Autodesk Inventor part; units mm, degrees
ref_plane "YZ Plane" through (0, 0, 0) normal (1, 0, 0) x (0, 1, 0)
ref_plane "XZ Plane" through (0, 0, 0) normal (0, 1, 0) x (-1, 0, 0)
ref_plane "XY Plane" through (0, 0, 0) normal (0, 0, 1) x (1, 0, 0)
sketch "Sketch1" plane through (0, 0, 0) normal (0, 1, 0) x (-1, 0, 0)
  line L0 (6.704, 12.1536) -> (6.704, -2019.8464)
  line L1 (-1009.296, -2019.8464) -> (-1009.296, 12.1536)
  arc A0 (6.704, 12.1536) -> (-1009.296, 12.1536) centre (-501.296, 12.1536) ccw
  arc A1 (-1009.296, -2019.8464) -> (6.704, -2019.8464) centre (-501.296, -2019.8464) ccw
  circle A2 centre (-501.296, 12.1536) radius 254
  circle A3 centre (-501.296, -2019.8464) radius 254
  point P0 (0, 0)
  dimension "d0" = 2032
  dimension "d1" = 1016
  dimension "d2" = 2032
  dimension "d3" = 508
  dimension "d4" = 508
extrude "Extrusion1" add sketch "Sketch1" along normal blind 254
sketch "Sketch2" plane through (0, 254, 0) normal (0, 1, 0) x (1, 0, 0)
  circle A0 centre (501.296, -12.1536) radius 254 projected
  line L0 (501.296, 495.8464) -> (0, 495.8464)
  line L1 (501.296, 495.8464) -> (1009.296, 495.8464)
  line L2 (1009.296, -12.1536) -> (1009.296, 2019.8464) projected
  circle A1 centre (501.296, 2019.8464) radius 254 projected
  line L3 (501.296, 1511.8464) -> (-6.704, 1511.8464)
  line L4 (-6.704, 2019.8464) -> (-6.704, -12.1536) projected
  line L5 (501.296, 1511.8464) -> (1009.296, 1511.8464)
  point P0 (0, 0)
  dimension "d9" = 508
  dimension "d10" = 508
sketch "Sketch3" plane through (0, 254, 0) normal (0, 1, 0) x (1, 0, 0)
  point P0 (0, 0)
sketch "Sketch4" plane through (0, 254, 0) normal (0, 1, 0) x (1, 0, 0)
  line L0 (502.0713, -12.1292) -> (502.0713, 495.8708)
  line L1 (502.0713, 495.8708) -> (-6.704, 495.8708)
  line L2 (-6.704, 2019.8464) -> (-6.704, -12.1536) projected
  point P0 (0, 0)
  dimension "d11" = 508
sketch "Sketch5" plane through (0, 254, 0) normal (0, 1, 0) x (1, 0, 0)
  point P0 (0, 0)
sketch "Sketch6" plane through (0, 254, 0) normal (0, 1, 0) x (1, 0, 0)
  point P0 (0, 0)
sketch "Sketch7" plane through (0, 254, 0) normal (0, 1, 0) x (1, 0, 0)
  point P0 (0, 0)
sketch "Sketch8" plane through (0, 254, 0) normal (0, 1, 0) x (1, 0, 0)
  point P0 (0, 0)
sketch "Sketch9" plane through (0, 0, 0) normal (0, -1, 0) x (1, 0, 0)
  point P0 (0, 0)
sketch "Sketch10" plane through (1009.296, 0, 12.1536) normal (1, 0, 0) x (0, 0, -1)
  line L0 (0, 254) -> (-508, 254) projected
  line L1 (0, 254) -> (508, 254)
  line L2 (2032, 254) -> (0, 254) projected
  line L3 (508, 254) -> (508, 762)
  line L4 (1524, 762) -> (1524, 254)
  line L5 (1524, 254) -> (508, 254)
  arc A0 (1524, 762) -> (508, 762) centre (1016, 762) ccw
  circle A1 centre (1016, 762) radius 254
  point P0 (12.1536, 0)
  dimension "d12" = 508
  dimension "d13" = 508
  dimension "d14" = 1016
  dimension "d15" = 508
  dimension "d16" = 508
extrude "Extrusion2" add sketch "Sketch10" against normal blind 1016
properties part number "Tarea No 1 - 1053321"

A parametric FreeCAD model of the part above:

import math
import FreeCAD as App
import Part
import Sketcher

V = App.Vector
Q = App.Units.Quantity

doc = App.newDocument("Part")
body = doc.addObject("PartDesign::Body", "Body")

sketch1 = body.newObject("Sketcher::SketchObject", "Sketch")
sketch1.AttachmentSupport = (doc.getObject("XZ_Plane"), [""])
sketch1.MapMode = "FlatFace"
sketch1.addGeometry(Part.LineSegment(V(-6.704, -2019.8464, 0), V(-6.704, 12.1536, 0)), False)
sketch1.addGeometry(Part.ArcOfCircle(Part.Circle(V(501.296, 12.1536, 0), V(0, 0, 1), 508), math.radians(0), math.radians(180)), False)
sketch1.addGeometry(Part.LineSegment(V(1009.296, 12.1536, 0), V(1009.296, -2019.8464, 0)), False)
sketch1.addGeometry(Part.ArcOfCircle(Part.Circle(V(501.296, -2019.8464, 0), V(0, 0, 1), 508), math.radians(180), math.radians(360)), False)
sketch1.addGeometry(Part.Circle(V(501.296, -2019.8464, 0), V(0, 0, 1), 254), False)
sketch1.addGeometry(Part.Circle(V(501.296, 12.1536, 0), V(0, 0, 1), 254), False)
sketch1.addConstraint(Sketcher.Constraint("Tangent", 0, 2, 1, 2))
sketch1.addConstraint(Sketcher.Constraint("Tangent", 1, 1, 2, 1))
sketch1.addConstraint(Sketcher.Constraint("Tangent", 2, 2, 3, 2))
sketch1.addConstraint(Sketcher.Constraint("Tangent", 3, 1, 0, 1))
sketch1.addConstraint(Sketcher.Constraint("Vertical", 0))
sketch1.addConstraint(Sketcher.Constraint("Vertical", 2))
sketch1.addConstraint(Sketcher.Constraint("Coincident", 4, 3, 3, 3))
sketch1.addConstraint(Sketcher.Constraint("Coincident", 5, 3, 1, 3))
sketch1.addConstraint(Sketcher.Constraint("Equal", 4, 5))
sketch1.addConstraint(Sketcher.Constraint("Diameter", 4, Q("20 in")))
sketch1.addConstraint(Sketcher.Constraint("Radius", 1, Q("20 in")))
sketch1.addConstraint(Sketcher.Constraint("DistanceY", 0, 1, 0, 2, Q("80 in")))
sketch1.addConstraint(Sketcher.Constraint("DistanceY", -1, 1, 1, 3, Q("0.4785 in")))
sketch1.addConstraint(Sketcher.Constraint("DistanceX", -1, 1, 1, 3, 501.296))
pad1 = body.newObject("PartDesign::Pad", "Pad")
pad1.Profile = sketch1
pad1.Length = Q("10 in")
pad1.Reversed = True

sketch2 = body.newObject("Sketcher::SketchObject", "Sketch001")
sketch2.AttachmentSupport = (doc.getObject("YZ_Plane"), [""])
sketch2.MapMode = "FlatFace"
sketch2.AttachmentOffset = App.Placement(V(0, 0, 1009.296), App.Rotation())
sketch2.addGeometry(Part.LineSegment(V(254, -495.8464, 0), V(254, -1511.8464, 0)), False)
sketch2.addGeometry(Part.LineSegment(V(254, -1511.8464, 0), V(762, -1511.8464, 0)), False)
sketch2.addGeometry(Part.ArcOfCircle(Part.Circle(V(762, -1003.8464, 0), V(0, 0, 1), 508), math.radians(-90), math.radians(90)), False)
sketch2.addGeometry(Part.LineSegment(V(762, -495.8464, 0), V(254, -495.8464, 0)), False)
sketch2.addGeometry(Part.Circle(V(762, -1003.8464, 0), V(0, 0, 1), 254), False)
sketch2.addConstraint(Sketcher.Constraint("Coincident", 0, 2, 1, 1))
sketch2.addConstraint(Sketcher.Constraint("Tangent", 1, 2, 2, 1))
sketch2.addConstraint(Sketcher.Constraint("Tangent", 2, 2, 3, 1))
sketch2.addConstraint(Sketcher.Constraint("Coincident", 3, 2, 0, 1))
sketch2.addConstraint(Sketcher.Constraint("Vertical", 0))
sketch2.addConstraint(Sketcher.Constraint("Horizontal", 1))
sketch2.addConstraint(Sketcher.Constraint("Horizontal", 3))
sketch2.addConstraint(Sketcher.Constraint("Coincident", 4, 3, 2, 3))
sketch2.addConstraint(Sketcher.Constraint("Diameter", 4, Q("20 in")))
sketch2.addConstraint(Sketcher.Constraint("Radius", 2, Q("20 in")))
sketch2.addConstraint(Sketcher.Constraint("DistanceX", 1, 1, 1, 2, Q("20 in")))
sketch2.addConstraint(Sketcher.Constraint("DistanceX", -1, 1, 2, 3, Q("30 in")))
sketch2.addConstraint(Sketcher.Constraint("DistanceY", 2, 3, -1, 1, Q("39.5215 in")))
pad2 = body.newObject("PartDesign::Pad", "Pad001")
pad2.Profile = sketch2
pad2.Length = Q("40 in")
pad2.Reversed = True

doc.recompute()
